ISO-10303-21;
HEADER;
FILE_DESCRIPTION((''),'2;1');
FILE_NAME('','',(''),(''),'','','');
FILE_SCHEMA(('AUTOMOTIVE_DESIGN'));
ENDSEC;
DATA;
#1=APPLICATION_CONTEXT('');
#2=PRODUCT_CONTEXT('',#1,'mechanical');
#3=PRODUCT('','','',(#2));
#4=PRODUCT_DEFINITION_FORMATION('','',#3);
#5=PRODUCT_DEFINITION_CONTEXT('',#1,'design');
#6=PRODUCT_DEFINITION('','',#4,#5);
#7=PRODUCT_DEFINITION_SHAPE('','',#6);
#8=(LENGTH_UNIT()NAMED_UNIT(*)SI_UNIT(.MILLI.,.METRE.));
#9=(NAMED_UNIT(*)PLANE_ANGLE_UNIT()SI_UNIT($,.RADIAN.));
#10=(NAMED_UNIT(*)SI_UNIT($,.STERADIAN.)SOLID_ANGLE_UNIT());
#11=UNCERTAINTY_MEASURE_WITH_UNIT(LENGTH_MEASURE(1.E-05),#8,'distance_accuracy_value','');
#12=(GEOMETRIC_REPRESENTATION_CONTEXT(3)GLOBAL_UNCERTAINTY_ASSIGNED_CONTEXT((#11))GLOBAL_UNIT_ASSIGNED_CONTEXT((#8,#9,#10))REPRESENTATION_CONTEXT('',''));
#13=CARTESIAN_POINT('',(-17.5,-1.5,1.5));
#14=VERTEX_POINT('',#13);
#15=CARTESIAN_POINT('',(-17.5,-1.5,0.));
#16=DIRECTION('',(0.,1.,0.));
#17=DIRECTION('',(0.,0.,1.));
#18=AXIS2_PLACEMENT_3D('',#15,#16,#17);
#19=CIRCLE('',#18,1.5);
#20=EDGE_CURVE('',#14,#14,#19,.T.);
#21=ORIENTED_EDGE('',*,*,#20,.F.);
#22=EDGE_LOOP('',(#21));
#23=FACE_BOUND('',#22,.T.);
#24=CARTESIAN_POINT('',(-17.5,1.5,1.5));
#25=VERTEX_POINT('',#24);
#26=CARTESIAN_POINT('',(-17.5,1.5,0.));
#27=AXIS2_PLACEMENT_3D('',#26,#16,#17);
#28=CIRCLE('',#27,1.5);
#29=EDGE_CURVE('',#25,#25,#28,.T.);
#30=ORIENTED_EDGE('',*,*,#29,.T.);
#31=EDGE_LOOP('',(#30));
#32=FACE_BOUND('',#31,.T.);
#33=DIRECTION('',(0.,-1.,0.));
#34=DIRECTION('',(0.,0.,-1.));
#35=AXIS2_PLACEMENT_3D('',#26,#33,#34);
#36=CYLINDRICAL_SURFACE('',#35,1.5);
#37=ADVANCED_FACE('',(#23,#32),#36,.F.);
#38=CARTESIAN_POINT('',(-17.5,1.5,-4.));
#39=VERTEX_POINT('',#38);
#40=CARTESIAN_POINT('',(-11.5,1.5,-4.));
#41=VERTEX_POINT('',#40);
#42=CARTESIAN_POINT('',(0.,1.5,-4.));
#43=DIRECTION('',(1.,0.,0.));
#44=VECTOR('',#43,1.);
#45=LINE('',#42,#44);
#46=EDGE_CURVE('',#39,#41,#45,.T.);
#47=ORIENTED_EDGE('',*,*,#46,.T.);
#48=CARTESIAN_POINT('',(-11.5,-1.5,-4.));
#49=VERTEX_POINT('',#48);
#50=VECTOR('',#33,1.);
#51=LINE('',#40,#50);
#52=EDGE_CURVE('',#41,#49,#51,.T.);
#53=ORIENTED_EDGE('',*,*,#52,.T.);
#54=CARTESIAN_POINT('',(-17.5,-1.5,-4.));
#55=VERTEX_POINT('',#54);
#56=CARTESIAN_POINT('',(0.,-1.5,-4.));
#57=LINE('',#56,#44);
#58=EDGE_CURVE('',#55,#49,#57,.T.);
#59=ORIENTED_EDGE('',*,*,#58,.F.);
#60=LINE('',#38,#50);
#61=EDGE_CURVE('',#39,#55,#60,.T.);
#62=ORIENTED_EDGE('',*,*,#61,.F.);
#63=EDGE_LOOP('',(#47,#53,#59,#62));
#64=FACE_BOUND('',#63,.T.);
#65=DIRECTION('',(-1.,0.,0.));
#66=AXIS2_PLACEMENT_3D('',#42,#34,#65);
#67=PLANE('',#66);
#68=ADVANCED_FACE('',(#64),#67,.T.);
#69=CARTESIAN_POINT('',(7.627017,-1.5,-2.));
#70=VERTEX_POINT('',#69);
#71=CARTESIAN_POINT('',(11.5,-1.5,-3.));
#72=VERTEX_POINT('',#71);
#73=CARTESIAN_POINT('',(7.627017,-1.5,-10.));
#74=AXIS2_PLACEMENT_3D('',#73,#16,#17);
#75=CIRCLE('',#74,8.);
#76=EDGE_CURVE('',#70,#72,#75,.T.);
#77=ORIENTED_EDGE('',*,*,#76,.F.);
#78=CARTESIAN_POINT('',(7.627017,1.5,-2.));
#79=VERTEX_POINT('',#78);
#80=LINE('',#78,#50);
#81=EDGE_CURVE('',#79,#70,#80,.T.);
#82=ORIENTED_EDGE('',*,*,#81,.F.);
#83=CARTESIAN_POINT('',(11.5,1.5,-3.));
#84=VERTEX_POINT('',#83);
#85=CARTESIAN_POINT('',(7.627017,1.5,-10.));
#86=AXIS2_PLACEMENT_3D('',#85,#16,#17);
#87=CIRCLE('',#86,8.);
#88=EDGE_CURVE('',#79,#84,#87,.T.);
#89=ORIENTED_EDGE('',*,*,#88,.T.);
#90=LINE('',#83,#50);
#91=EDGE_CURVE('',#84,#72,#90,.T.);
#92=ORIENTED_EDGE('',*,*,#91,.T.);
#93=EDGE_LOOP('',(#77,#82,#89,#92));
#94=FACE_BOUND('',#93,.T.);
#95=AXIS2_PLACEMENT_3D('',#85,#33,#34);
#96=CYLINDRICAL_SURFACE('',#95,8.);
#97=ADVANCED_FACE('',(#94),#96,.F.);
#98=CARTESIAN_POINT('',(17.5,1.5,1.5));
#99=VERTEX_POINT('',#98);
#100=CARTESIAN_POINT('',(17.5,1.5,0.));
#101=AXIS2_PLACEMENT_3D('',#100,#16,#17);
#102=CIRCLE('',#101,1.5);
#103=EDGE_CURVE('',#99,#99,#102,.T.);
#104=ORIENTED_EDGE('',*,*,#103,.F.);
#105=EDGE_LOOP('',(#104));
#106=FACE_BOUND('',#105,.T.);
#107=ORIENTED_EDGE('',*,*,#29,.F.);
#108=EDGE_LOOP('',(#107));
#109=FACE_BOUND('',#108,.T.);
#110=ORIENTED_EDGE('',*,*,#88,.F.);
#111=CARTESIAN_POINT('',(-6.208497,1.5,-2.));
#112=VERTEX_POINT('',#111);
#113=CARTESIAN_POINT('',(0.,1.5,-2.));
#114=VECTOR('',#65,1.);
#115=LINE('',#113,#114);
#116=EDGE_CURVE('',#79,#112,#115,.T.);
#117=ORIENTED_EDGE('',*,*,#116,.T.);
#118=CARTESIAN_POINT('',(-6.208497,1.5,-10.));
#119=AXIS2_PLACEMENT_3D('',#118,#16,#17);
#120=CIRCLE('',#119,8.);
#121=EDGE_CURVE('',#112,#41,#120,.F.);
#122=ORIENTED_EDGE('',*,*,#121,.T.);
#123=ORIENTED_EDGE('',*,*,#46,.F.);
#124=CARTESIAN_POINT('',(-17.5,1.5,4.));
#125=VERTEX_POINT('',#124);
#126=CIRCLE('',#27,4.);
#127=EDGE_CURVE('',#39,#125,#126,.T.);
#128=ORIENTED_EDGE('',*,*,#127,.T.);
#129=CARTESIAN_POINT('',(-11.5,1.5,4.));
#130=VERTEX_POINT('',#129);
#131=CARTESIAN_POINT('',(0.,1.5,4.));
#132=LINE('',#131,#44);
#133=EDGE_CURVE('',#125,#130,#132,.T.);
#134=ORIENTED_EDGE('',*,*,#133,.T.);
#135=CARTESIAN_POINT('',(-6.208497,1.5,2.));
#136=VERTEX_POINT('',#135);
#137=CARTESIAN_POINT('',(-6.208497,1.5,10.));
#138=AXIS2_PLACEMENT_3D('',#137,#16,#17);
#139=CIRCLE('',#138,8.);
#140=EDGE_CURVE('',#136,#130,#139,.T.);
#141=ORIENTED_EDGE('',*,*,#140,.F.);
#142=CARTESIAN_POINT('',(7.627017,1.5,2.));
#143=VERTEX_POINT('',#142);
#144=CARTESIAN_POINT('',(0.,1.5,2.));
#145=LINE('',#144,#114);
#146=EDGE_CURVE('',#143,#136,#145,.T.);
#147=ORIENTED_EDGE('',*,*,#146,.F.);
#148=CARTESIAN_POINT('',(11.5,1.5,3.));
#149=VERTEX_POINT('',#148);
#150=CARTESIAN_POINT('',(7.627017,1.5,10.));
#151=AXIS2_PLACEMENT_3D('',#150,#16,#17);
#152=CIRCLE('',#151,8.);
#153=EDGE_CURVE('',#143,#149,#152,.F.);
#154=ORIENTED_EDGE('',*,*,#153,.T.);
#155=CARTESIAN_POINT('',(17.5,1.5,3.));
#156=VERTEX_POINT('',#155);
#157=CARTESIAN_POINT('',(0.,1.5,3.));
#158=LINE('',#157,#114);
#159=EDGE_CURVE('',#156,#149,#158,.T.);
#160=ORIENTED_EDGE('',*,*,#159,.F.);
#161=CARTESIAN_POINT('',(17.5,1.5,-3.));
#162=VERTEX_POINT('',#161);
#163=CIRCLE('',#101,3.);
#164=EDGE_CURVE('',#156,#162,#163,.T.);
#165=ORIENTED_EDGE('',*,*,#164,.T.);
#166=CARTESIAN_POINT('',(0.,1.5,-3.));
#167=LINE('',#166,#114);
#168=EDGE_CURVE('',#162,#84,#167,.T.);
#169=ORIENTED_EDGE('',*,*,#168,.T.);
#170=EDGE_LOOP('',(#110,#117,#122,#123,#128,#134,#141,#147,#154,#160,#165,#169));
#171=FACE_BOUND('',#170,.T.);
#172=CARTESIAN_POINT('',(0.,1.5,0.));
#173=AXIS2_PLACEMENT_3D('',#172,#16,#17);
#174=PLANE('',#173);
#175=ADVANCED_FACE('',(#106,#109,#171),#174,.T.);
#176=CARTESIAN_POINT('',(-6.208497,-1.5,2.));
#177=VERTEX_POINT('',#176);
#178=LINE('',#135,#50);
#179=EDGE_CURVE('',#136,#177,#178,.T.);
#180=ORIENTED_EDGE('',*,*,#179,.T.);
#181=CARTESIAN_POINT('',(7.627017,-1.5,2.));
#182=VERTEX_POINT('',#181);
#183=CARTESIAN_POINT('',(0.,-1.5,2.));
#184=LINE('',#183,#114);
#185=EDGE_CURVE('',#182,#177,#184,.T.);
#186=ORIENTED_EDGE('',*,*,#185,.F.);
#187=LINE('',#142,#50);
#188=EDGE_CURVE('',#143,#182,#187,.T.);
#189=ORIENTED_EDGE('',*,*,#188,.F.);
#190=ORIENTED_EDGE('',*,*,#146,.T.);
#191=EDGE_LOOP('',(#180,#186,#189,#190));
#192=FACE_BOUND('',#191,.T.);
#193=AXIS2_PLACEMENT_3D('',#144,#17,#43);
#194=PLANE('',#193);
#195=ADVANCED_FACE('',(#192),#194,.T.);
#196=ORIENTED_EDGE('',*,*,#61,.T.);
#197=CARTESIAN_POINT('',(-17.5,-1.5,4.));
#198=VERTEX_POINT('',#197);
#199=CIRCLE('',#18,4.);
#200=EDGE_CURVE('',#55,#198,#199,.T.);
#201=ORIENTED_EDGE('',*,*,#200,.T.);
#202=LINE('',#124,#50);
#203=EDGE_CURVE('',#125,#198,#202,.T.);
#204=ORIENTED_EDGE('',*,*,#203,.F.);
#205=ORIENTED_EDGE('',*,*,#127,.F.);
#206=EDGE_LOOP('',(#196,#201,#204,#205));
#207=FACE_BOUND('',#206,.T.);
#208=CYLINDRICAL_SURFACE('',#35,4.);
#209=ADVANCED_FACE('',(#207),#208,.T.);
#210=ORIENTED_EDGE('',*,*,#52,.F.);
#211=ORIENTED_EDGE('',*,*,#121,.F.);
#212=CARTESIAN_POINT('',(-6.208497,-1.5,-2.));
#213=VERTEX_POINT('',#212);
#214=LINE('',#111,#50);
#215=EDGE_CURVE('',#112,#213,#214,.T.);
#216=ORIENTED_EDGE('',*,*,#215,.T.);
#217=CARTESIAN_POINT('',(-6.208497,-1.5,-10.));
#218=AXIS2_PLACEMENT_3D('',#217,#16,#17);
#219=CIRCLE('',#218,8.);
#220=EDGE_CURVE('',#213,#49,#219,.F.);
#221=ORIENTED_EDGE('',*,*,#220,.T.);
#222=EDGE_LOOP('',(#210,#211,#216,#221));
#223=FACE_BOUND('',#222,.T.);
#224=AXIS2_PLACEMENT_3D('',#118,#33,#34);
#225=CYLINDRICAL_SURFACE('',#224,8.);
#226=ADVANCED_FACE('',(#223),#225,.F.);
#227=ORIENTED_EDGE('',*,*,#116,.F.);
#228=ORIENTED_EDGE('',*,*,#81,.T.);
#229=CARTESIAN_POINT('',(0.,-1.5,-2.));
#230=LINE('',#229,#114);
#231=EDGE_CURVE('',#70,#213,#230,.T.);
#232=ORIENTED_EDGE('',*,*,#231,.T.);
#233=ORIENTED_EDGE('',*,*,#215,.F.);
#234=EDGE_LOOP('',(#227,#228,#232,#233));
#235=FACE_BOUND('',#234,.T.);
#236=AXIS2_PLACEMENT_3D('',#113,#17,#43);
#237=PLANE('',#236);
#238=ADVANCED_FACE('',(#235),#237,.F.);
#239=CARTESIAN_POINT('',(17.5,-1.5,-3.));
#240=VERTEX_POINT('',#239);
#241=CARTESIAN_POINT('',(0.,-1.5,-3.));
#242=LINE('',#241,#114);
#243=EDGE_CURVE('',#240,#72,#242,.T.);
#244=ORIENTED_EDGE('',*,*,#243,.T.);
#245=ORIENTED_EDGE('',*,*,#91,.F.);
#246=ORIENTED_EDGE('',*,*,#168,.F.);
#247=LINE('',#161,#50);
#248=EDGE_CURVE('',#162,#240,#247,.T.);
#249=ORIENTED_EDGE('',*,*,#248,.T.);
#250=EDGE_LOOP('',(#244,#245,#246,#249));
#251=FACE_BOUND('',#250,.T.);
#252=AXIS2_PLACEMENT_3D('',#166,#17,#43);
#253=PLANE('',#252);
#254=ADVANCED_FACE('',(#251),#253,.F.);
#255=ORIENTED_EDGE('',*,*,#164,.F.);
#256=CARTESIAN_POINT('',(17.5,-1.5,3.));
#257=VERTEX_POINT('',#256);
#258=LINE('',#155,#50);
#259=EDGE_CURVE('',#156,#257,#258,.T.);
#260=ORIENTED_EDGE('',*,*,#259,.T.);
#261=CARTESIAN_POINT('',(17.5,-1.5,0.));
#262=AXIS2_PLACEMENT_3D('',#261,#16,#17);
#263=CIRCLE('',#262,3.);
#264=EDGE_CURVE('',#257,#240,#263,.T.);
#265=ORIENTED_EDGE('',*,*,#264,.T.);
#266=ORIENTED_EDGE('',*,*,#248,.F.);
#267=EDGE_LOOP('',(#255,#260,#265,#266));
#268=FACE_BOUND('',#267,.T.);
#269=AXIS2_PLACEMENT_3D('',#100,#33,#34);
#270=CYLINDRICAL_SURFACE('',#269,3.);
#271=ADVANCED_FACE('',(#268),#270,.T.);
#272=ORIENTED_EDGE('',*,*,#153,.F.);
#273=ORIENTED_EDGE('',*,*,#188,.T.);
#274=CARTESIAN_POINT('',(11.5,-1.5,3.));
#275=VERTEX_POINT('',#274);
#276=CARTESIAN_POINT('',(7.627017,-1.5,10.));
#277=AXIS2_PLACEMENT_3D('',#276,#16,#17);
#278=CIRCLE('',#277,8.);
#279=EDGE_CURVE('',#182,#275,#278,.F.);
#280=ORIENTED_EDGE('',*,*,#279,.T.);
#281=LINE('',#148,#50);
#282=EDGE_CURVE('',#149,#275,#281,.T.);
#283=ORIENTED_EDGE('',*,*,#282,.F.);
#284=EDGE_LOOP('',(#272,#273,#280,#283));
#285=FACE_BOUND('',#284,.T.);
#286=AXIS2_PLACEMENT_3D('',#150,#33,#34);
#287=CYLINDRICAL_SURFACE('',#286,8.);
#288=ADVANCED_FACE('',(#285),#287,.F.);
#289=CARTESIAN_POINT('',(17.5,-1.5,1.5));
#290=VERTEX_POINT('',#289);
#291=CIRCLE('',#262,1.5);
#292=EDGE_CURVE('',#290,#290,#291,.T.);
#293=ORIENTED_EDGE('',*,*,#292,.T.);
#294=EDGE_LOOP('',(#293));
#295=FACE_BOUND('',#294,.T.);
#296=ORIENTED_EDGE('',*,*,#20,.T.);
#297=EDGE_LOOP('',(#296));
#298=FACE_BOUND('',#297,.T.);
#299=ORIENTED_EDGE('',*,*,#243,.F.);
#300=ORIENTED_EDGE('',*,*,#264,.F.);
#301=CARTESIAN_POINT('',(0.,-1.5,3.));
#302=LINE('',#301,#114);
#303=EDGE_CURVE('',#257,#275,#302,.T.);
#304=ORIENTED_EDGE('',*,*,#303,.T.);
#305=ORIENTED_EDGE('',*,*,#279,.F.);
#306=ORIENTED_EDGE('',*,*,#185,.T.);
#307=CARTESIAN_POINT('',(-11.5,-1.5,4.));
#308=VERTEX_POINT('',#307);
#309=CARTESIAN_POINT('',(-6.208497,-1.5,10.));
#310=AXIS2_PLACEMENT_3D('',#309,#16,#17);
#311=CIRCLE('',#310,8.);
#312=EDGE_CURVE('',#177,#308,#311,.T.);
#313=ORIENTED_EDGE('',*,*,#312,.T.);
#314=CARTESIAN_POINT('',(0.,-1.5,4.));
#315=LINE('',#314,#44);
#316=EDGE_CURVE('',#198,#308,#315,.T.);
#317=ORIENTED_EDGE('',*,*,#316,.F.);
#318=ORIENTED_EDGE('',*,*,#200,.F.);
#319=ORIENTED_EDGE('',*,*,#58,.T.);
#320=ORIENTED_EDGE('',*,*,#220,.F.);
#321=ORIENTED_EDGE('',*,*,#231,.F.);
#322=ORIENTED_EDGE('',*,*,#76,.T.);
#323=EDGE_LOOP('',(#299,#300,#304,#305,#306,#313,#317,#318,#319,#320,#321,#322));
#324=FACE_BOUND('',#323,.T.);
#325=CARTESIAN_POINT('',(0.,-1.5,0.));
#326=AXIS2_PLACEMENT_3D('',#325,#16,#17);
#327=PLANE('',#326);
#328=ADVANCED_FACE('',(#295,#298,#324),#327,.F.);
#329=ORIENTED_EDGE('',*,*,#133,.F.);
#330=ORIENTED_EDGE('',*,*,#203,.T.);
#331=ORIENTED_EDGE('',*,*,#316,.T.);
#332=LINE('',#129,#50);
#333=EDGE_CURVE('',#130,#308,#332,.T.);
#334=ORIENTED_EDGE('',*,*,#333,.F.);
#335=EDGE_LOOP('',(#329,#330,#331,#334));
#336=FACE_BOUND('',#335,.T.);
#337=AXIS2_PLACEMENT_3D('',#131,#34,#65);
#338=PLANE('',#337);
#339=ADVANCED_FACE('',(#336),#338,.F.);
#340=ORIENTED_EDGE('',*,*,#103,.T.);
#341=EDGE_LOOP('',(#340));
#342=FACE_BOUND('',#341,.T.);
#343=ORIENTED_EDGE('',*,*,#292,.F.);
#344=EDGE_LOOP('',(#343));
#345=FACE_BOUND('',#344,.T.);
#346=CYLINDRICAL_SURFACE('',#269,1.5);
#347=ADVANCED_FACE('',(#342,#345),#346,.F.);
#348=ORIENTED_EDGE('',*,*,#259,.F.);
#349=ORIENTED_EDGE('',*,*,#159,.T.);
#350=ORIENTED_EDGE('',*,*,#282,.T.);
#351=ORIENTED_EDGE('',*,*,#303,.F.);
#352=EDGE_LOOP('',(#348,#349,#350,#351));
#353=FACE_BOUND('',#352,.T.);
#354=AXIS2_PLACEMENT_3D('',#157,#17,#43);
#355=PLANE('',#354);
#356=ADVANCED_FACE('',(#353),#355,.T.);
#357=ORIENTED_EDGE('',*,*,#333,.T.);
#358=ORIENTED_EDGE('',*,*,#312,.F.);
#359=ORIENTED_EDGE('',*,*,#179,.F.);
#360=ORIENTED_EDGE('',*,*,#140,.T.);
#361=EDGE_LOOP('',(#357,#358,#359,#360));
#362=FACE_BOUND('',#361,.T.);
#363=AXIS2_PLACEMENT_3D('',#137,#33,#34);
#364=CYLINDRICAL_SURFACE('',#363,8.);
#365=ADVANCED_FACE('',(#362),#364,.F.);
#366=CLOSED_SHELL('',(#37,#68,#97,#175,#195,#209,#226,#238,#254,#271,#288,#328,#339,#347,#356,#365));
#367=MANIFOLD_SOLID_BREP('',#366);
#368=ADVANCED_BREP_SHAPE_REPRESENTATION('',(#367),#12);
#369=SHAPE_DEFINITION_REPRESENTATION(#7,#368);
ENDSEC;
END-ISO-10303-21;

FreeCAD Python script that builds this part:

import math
import FreeCAD as App
import Part
import Sketcher
Q = App.Units.Quantity

doc = App.newDocument("Part")
params = doc.addObject("Spreadsheet::Sheet", "Params")
for row, (alias, value) in enumerate([
    ("sketch1_diameter", "3 mm"),
    ("sketch1_radius", "4 mm"),
    ("sketch1_radius2", "8 mm"),
    ("sketch1_radius3", "3 mm"),
    ("sketch1_width", "6 mm"),
    ("pad1_length", "3 mm"),
], start=1):
    params.set(f"A{row}", alias)
    params.set(f"B{row}", "=" + value)
    params.setAlias(f"B{row}", alias)

body = doc.addObject("PartDesign::Body", "Body")

# Sketch on XZ plane
sketch1 = body.newObject("Sketcher::SketchObject", "Sketch")
sketch1.AttachmentSupport = (doc.getObject("XZ_Plane"), [""])
sketch1.MapMode = "FlatFace"
sketch1.addGeometry(Part.ArcOfCircle(Part.Circle(App.Vector(-17.5, 0, 0), App.Vector(0, 0, 1), 4), math.radians(90), math.radians(270)), False)
sketch1.addGeometry(Part.LineSegment(App.Vector(-17.5, 4, 0), App.Vector(-11.5, 4, 0)), False)
sketch1.addGeometry(Part.ArcOfCircle(Part.Circle(App.Vector(-6.208497, 10, 0), App.Vector(0, 0, 1), 8), math.radians(-131.409622), math.radians(-90)), False)
sketch1.addGeometry(Part.LineSegment(App.Vector(-6.208497, 2, 0), App.Vector(7.627017, 2, 0)), False)
sketch1.addGeometry(Part.ArcOfCircle(Part.Circle(App.Vector(7.627017, 10, 0), App.Vector(0, 0, 1), 8), math.radians(-90), math.radians(-61.044976)), False)
sketch1.addGeometry(Part.LineSegment(App.Vector(11.5, 3, 0), App.Vector(17.5, 3, 0)), False)
sketch1.addGeometry(Part.ArcOfCircle(Part.Circle(App.Vector(17.5, 0, 0), App.Vector(0, 0, 1), 3), math.radians(-90), math.radians(90)), False)
sketch1.addGeometry(Part.LineSegment(App.Vector(17.5, -3, 0), App.Vector(11.5, -3, 0)), False)
sketch1.addGeometry(Part.ArcOfCircle(Part.Circle(App.Vector(7.627017, -10, 0), App.Vector(0, 0, 1), 8), math.radians(61.044976), math.radians(90)), False)
sketch1.addGeometry(Part.LineSegment(App.Vector(7.627017, -2, 0), App.Vector(-6.208497, -2, 0)), False)
sketch1.addGeometry(Part.ArcOfCircle(Part.Circle(App.Vector(-6.208497, -10, 0), App.Vector(0, 0, 1), 8), math.radians(90), math.radians(131.409622)), False)
sketch1.addGeometry(Part.LineSegment(App.Vector(-11.5, -4, 0), App.Vector(-17.5, -4, 0)), False)
sketch1.addGeometry(Part.Circle(App.Vector(-17.5, 0, 0), App.Vector(0, 0, 1), 1.5), False)
sketch1.addGeometry(Part.Circle(App.Vector(17.5, 0, 0), App.Vector(0, 0, 1), 1.5), False)
sketch1.addConstraint(Sketcher.Constraint("Tangent", 0, 1, 1, 1))
sketch1.addConstraint(Sketcher.Constraint("Coincident", 1, 2, 2, 1))
sketch1.addConstraint(Sketcher.Constraint("Tangent", 2, 2, 3, 1))
sketch1.addConstraint(Sketcher.Constraint("Tangent", 3, 2, 4, 1))
sketch1.addConstraint(Sketcher.Constraint("Coincident", 4, 2, 5, 1))
sketch1.addConstraint(Sketcher.Constraint("Tangent", 5, 2, 6, 2))
sketch1.addConstraint(Sketcher.Constraint("Tangent", 6, 1, 7, 1))
sketch1.addConstraint(Sketcher.Constraint("Coincident", 7, 2, 8, 1))
sketch1.addConstraint(Sketcher.Constraint("Tangent", 8, 2, 9, 1))
sketch1.addConstraint(Sketcher.Constraint("Tangent", 9, 2, 10, 1))
sketch1.addConstraint(Sketcher.Constraint("Coincident", 10, 2, 11, 1))
sketch1.addConstraint(Sketcher.Constraint("Tangent", 11, 2, 0, 2))
sketch1.addConstraint(Sketcher.Constraint("Horizontal", 1))
sketch1.addConstraint(Sketcher.Constraint("Horizontal", 3))
sketch1.addConstraint(Sketcher.Constraint("Horizontal", 5))
sketch1.addConstraint(Sketcher.Constraint("Horizontal", 7))
sketch1.addConstraint(Sketcher.Constraint("Horizontal", 9))
sketch1.addConstraint(Sketcher.Constraint("Horizontal", 11))
sketch1.addConstraint(Sketcher.Constraint("Coincident", 12, 3, 0, 3))
sketch1.addConstraint(Sketcher.Constraint("Coincident", 13, 3, 6, 3))
sketch1.addConstraint(Sketcher.Constraint("Equal", 2, 4))
sketch1.addConstraint(Sketcher.Constraint("Equal", 4, 8))
sketch1.addConstraint(Sketcher.Constraint("Equal", 8, 10))
sketch1.addConstraint(Sketcher.Constraint("Equal", 12, 13))
sketch1.addConstraint(Sketcher.Constraint("Symmetric", 0, 3, 6, 3, -1, 1))
sketch1.addConstraint(Sketcher.Constraint("Symmetric", 4, 3, 8, 3, -1))
sketch1.addConstraint(Sketcher.Constraint("Symmetric", 1, 2, 10, 2, -1))
sketch1.addConstraint(Sketcher.Constraint("Equal", 1, 5))
sketch1.addConstraint(Sketcher.Constraint("Diameter", 12, Q("3 mm")))
sketch1.addConstraint(Sketcher.Constraint("Radius", 0, Q("4 mm")))
sketch1.addConstraint(Sketcher.Constraint("Radius", 2, Q("8 mm")))
sketch1.addConstraint(Sketcher.Constraint("Radius", 6, Q("3 mm")))
sketch1.addConstraint(Sketcher.Constraint("DistanceX", 1, 1, 1, 2, Q("6 mm")))
sketch1.addConstraint(Sketcher.Constraint("DistanceY", -1, 1, 2, 3, Q("10 mm")))
sketch1.addConstraint(Sketcher.Constraint("DistanceX", 0, 3, 6, 3, Q("35 mm")))
sketch1.setExpression("Constraints[28]", "Params.sketch1_diameter")
sketch1.setExpression("Constraints[29]", "Params.sketch1_radius")
sketch1.setExpression("Constraints[30]", "Params.sketch1_radius2")
sketch1.setExpression("Constraints[31]", "Params.sketch1_radius3")
sketch1.setExpression("Constraints[32]", "Params.sketch1_width")
pad1 = body.newObject("PartDesign::Pad", "Pad")
pad1.Profile = sketch1
pad1.setExpression("Length", "Params.pad1_length")
pad1.Midplane = True

doc.recompute()
